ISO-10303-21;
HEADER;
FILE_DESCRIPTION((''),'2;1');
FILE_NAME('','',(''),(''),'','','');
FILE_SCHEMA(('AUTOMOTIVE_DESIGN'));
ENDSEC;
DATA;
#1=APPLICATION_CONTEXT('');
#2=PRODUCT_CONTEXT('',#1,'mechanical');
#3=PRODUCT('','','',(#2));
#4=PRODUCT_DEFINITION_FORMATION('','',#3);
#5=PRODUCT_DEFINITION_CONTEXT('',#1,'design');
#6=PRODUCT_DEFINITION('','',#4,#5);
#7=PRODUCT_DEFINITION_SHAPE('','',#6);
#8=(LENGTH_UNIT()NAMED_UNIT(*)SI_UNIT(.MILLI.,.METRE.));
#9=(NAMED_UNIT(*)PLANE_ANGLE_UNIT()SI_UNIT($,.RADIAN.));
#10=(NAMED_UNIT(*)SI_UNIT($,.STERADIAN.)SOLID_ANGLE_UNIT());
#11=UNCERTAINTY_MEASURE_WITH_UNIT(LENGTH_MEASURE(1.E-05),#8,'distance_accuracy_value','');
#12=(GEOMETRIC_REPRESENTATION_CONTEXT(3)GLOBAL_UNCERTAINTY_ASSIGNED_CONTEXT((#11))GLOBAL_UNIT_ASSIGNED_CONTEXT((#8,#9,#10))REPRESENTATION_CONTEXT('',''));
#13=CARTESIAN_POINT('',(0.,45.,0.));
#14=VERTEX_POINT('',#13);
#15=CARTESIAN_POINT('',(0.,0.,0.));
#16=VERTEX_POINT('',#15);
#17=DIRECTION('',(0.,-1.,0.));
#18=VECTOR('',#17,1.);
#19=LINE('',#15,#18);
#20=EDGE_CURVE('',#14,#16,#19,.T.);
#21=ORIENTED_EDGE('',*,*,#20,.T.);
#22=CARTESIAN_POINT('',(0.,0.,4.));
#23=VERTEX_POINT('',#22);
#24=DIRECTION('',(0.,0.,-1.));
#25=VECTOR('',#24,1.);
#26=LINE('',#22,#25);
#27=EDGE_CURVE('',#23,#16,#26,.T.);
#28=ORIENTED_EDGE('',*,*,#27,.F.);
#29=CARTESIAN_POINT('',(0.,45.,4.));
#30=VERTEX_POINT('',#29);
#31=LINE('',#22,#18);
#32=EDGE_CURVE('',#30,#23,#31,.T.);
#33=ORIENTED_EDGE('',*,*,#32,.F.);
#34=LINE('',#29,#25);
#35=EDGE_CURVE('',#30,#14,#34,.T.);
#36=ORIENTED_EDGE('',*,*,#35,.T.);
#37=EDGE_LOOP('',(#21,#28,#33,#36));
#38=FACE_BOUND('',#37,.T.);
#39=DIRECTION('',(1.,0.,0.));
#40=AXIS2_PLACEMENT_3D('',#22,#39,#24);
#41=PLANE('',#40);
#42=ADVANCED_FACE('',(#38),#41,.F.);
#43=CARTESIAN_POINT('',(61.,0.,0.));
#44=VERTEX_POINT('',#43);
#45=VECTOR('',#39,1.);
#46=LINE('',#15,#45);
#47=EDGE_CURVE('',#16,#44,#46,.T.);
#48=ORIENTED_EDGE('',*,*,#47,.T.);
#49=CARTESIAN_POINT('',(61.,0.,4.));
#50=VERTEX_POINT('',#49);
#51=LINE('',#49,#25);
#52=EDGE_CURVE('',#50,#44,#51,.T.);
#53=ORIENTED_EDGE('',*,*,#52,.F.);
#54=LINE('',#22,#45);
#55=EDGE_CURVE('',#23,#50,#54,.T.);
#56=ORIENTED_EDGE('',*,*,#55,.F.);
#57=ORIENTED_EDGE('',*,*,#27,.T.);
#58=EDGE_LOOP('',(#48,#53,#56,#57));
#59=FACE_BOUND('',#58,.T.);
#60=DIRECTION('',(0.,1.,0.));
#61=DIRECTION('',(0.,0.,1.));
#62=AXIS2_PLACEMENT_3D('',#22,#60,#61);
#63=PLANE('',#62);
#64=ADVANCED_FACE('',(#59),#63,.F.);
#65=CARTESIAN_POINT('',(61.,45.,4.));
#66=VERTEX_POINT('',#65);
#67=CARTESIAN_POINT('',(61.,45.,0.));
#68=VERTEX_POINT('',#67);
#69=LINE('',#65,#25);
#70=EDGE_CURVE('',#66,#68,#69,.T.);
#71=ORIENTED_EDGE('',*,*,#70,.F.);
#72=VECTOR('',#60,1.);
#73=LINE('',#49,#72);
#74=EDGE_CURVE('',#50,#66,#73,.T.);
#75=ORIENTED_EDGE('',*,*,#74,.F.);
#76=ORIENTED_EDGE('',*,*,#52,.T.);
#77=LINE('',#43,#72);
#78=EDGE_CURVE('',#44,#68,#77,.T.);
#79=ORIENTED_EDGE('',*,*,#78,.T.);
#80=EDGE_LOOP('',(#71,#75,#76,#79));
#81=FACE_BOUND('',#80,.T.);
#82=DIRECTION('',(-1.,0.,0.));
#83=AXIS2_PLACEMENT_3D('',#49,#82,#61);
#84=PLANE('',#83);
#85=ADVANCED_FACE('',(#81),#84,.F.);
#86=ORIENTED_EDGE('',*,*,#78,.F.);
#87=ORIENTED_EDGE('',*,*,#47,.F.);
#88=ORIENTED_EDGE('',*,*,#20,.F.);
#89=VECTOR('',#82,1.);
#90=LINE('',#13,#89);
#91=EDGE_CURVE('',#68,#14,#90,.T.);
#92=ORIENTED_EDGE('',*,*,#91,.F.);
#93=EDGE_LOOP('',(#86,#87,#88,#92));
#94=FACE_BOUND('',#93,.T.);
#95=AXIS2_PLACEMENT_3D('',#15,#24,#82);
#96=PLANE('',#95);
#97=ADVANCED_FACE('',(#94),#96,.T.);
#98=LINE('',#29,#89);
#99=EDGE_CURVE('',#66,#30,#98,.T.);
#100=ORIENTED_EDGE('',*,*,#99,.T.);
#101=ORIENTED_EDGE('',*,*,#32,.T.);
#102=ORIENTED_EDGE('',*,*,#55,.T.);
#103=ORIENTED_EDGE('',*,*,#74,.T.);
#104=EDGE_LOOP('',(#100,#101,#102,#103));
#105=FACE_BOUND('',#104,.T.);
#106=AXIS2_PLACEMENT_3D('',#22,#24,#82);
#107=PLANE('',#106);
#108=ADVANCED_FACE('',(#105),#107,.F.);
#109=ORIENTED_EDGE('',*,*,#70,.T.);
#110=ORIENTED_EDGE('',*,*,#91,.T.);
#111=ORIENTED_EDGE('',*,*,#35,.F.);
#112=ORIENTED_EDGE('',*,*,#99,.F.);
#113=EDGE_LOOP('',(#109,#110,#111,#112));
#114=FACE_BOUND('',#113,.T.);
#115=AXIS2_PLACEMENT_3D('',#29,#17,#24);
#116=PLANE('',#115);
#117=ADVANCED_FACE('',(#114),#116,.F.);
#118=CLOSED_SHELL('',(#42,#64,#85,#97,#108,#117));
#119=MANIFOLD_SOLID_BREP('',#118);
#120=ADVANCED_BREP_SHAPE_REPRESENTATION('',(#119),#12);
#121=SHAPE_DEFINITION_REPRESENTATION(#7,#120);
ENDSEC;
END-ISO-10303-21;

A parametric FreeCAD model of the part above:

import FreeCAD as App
import Part
import Sketcher

V = App.Vector


def add_polygon(sketch, points):
    """Adds a closed chain of lines whose ends are joined by coincident constraints."""
    first, n = sketch.GeometryCount, len(points)
    for a, b in zip(points, points[1:] + points[:1]):
        sketch.addGeometry(Part.LineSegment(App.Vector(*a, 0), App.Vector(*b, 0)), False)
    for i in range(n):
        sketch.addConstraint(Sketcher.Constraint("Coincident", first + i, 2, first + (i + 1) % n, 1))

doc = App.newDocument("Part")
body = doc.addObject("PartDesign::Body", "Body")

# Sketch on XY plane
sketch1 = doc.addObject("Sketcher::SketchObject", "Sketch")
body.addObject(sketch1)
sketch1.AttachmentSupport = (doc.XY_Plane, [""])
sketch1.MapMode = "FlatFace"
add_polygon(sketch1, [(0, 45), (0, 0), (61, 0), (61, 45)])  # lines 0-3
sketch1.addConstraint([
    Sketcher.Constraint("Vertical", 0),
    Sketcher.Constraint("Horizontal", 1),
    Sketcher.Constraint("Vertical", 2),
    Sketcher.Constraint("Horizontal", 3),
    Sketcher.Constraint("Coincident", 0, 2, -1, 1),
    Sketcher.Constraint("DistanceX", 1, 1, 1, 2, 61.0),
    Sketcher.Constraint("DistanceY", 0, 2, 0, 1, 45.0),
])
pad1 = doc.addObject("PartDesign::Pad", "Pad")
body.addObject(pad1)
pad1.Profile = sketch1
pad1.Length = 4

doc.recompute()
